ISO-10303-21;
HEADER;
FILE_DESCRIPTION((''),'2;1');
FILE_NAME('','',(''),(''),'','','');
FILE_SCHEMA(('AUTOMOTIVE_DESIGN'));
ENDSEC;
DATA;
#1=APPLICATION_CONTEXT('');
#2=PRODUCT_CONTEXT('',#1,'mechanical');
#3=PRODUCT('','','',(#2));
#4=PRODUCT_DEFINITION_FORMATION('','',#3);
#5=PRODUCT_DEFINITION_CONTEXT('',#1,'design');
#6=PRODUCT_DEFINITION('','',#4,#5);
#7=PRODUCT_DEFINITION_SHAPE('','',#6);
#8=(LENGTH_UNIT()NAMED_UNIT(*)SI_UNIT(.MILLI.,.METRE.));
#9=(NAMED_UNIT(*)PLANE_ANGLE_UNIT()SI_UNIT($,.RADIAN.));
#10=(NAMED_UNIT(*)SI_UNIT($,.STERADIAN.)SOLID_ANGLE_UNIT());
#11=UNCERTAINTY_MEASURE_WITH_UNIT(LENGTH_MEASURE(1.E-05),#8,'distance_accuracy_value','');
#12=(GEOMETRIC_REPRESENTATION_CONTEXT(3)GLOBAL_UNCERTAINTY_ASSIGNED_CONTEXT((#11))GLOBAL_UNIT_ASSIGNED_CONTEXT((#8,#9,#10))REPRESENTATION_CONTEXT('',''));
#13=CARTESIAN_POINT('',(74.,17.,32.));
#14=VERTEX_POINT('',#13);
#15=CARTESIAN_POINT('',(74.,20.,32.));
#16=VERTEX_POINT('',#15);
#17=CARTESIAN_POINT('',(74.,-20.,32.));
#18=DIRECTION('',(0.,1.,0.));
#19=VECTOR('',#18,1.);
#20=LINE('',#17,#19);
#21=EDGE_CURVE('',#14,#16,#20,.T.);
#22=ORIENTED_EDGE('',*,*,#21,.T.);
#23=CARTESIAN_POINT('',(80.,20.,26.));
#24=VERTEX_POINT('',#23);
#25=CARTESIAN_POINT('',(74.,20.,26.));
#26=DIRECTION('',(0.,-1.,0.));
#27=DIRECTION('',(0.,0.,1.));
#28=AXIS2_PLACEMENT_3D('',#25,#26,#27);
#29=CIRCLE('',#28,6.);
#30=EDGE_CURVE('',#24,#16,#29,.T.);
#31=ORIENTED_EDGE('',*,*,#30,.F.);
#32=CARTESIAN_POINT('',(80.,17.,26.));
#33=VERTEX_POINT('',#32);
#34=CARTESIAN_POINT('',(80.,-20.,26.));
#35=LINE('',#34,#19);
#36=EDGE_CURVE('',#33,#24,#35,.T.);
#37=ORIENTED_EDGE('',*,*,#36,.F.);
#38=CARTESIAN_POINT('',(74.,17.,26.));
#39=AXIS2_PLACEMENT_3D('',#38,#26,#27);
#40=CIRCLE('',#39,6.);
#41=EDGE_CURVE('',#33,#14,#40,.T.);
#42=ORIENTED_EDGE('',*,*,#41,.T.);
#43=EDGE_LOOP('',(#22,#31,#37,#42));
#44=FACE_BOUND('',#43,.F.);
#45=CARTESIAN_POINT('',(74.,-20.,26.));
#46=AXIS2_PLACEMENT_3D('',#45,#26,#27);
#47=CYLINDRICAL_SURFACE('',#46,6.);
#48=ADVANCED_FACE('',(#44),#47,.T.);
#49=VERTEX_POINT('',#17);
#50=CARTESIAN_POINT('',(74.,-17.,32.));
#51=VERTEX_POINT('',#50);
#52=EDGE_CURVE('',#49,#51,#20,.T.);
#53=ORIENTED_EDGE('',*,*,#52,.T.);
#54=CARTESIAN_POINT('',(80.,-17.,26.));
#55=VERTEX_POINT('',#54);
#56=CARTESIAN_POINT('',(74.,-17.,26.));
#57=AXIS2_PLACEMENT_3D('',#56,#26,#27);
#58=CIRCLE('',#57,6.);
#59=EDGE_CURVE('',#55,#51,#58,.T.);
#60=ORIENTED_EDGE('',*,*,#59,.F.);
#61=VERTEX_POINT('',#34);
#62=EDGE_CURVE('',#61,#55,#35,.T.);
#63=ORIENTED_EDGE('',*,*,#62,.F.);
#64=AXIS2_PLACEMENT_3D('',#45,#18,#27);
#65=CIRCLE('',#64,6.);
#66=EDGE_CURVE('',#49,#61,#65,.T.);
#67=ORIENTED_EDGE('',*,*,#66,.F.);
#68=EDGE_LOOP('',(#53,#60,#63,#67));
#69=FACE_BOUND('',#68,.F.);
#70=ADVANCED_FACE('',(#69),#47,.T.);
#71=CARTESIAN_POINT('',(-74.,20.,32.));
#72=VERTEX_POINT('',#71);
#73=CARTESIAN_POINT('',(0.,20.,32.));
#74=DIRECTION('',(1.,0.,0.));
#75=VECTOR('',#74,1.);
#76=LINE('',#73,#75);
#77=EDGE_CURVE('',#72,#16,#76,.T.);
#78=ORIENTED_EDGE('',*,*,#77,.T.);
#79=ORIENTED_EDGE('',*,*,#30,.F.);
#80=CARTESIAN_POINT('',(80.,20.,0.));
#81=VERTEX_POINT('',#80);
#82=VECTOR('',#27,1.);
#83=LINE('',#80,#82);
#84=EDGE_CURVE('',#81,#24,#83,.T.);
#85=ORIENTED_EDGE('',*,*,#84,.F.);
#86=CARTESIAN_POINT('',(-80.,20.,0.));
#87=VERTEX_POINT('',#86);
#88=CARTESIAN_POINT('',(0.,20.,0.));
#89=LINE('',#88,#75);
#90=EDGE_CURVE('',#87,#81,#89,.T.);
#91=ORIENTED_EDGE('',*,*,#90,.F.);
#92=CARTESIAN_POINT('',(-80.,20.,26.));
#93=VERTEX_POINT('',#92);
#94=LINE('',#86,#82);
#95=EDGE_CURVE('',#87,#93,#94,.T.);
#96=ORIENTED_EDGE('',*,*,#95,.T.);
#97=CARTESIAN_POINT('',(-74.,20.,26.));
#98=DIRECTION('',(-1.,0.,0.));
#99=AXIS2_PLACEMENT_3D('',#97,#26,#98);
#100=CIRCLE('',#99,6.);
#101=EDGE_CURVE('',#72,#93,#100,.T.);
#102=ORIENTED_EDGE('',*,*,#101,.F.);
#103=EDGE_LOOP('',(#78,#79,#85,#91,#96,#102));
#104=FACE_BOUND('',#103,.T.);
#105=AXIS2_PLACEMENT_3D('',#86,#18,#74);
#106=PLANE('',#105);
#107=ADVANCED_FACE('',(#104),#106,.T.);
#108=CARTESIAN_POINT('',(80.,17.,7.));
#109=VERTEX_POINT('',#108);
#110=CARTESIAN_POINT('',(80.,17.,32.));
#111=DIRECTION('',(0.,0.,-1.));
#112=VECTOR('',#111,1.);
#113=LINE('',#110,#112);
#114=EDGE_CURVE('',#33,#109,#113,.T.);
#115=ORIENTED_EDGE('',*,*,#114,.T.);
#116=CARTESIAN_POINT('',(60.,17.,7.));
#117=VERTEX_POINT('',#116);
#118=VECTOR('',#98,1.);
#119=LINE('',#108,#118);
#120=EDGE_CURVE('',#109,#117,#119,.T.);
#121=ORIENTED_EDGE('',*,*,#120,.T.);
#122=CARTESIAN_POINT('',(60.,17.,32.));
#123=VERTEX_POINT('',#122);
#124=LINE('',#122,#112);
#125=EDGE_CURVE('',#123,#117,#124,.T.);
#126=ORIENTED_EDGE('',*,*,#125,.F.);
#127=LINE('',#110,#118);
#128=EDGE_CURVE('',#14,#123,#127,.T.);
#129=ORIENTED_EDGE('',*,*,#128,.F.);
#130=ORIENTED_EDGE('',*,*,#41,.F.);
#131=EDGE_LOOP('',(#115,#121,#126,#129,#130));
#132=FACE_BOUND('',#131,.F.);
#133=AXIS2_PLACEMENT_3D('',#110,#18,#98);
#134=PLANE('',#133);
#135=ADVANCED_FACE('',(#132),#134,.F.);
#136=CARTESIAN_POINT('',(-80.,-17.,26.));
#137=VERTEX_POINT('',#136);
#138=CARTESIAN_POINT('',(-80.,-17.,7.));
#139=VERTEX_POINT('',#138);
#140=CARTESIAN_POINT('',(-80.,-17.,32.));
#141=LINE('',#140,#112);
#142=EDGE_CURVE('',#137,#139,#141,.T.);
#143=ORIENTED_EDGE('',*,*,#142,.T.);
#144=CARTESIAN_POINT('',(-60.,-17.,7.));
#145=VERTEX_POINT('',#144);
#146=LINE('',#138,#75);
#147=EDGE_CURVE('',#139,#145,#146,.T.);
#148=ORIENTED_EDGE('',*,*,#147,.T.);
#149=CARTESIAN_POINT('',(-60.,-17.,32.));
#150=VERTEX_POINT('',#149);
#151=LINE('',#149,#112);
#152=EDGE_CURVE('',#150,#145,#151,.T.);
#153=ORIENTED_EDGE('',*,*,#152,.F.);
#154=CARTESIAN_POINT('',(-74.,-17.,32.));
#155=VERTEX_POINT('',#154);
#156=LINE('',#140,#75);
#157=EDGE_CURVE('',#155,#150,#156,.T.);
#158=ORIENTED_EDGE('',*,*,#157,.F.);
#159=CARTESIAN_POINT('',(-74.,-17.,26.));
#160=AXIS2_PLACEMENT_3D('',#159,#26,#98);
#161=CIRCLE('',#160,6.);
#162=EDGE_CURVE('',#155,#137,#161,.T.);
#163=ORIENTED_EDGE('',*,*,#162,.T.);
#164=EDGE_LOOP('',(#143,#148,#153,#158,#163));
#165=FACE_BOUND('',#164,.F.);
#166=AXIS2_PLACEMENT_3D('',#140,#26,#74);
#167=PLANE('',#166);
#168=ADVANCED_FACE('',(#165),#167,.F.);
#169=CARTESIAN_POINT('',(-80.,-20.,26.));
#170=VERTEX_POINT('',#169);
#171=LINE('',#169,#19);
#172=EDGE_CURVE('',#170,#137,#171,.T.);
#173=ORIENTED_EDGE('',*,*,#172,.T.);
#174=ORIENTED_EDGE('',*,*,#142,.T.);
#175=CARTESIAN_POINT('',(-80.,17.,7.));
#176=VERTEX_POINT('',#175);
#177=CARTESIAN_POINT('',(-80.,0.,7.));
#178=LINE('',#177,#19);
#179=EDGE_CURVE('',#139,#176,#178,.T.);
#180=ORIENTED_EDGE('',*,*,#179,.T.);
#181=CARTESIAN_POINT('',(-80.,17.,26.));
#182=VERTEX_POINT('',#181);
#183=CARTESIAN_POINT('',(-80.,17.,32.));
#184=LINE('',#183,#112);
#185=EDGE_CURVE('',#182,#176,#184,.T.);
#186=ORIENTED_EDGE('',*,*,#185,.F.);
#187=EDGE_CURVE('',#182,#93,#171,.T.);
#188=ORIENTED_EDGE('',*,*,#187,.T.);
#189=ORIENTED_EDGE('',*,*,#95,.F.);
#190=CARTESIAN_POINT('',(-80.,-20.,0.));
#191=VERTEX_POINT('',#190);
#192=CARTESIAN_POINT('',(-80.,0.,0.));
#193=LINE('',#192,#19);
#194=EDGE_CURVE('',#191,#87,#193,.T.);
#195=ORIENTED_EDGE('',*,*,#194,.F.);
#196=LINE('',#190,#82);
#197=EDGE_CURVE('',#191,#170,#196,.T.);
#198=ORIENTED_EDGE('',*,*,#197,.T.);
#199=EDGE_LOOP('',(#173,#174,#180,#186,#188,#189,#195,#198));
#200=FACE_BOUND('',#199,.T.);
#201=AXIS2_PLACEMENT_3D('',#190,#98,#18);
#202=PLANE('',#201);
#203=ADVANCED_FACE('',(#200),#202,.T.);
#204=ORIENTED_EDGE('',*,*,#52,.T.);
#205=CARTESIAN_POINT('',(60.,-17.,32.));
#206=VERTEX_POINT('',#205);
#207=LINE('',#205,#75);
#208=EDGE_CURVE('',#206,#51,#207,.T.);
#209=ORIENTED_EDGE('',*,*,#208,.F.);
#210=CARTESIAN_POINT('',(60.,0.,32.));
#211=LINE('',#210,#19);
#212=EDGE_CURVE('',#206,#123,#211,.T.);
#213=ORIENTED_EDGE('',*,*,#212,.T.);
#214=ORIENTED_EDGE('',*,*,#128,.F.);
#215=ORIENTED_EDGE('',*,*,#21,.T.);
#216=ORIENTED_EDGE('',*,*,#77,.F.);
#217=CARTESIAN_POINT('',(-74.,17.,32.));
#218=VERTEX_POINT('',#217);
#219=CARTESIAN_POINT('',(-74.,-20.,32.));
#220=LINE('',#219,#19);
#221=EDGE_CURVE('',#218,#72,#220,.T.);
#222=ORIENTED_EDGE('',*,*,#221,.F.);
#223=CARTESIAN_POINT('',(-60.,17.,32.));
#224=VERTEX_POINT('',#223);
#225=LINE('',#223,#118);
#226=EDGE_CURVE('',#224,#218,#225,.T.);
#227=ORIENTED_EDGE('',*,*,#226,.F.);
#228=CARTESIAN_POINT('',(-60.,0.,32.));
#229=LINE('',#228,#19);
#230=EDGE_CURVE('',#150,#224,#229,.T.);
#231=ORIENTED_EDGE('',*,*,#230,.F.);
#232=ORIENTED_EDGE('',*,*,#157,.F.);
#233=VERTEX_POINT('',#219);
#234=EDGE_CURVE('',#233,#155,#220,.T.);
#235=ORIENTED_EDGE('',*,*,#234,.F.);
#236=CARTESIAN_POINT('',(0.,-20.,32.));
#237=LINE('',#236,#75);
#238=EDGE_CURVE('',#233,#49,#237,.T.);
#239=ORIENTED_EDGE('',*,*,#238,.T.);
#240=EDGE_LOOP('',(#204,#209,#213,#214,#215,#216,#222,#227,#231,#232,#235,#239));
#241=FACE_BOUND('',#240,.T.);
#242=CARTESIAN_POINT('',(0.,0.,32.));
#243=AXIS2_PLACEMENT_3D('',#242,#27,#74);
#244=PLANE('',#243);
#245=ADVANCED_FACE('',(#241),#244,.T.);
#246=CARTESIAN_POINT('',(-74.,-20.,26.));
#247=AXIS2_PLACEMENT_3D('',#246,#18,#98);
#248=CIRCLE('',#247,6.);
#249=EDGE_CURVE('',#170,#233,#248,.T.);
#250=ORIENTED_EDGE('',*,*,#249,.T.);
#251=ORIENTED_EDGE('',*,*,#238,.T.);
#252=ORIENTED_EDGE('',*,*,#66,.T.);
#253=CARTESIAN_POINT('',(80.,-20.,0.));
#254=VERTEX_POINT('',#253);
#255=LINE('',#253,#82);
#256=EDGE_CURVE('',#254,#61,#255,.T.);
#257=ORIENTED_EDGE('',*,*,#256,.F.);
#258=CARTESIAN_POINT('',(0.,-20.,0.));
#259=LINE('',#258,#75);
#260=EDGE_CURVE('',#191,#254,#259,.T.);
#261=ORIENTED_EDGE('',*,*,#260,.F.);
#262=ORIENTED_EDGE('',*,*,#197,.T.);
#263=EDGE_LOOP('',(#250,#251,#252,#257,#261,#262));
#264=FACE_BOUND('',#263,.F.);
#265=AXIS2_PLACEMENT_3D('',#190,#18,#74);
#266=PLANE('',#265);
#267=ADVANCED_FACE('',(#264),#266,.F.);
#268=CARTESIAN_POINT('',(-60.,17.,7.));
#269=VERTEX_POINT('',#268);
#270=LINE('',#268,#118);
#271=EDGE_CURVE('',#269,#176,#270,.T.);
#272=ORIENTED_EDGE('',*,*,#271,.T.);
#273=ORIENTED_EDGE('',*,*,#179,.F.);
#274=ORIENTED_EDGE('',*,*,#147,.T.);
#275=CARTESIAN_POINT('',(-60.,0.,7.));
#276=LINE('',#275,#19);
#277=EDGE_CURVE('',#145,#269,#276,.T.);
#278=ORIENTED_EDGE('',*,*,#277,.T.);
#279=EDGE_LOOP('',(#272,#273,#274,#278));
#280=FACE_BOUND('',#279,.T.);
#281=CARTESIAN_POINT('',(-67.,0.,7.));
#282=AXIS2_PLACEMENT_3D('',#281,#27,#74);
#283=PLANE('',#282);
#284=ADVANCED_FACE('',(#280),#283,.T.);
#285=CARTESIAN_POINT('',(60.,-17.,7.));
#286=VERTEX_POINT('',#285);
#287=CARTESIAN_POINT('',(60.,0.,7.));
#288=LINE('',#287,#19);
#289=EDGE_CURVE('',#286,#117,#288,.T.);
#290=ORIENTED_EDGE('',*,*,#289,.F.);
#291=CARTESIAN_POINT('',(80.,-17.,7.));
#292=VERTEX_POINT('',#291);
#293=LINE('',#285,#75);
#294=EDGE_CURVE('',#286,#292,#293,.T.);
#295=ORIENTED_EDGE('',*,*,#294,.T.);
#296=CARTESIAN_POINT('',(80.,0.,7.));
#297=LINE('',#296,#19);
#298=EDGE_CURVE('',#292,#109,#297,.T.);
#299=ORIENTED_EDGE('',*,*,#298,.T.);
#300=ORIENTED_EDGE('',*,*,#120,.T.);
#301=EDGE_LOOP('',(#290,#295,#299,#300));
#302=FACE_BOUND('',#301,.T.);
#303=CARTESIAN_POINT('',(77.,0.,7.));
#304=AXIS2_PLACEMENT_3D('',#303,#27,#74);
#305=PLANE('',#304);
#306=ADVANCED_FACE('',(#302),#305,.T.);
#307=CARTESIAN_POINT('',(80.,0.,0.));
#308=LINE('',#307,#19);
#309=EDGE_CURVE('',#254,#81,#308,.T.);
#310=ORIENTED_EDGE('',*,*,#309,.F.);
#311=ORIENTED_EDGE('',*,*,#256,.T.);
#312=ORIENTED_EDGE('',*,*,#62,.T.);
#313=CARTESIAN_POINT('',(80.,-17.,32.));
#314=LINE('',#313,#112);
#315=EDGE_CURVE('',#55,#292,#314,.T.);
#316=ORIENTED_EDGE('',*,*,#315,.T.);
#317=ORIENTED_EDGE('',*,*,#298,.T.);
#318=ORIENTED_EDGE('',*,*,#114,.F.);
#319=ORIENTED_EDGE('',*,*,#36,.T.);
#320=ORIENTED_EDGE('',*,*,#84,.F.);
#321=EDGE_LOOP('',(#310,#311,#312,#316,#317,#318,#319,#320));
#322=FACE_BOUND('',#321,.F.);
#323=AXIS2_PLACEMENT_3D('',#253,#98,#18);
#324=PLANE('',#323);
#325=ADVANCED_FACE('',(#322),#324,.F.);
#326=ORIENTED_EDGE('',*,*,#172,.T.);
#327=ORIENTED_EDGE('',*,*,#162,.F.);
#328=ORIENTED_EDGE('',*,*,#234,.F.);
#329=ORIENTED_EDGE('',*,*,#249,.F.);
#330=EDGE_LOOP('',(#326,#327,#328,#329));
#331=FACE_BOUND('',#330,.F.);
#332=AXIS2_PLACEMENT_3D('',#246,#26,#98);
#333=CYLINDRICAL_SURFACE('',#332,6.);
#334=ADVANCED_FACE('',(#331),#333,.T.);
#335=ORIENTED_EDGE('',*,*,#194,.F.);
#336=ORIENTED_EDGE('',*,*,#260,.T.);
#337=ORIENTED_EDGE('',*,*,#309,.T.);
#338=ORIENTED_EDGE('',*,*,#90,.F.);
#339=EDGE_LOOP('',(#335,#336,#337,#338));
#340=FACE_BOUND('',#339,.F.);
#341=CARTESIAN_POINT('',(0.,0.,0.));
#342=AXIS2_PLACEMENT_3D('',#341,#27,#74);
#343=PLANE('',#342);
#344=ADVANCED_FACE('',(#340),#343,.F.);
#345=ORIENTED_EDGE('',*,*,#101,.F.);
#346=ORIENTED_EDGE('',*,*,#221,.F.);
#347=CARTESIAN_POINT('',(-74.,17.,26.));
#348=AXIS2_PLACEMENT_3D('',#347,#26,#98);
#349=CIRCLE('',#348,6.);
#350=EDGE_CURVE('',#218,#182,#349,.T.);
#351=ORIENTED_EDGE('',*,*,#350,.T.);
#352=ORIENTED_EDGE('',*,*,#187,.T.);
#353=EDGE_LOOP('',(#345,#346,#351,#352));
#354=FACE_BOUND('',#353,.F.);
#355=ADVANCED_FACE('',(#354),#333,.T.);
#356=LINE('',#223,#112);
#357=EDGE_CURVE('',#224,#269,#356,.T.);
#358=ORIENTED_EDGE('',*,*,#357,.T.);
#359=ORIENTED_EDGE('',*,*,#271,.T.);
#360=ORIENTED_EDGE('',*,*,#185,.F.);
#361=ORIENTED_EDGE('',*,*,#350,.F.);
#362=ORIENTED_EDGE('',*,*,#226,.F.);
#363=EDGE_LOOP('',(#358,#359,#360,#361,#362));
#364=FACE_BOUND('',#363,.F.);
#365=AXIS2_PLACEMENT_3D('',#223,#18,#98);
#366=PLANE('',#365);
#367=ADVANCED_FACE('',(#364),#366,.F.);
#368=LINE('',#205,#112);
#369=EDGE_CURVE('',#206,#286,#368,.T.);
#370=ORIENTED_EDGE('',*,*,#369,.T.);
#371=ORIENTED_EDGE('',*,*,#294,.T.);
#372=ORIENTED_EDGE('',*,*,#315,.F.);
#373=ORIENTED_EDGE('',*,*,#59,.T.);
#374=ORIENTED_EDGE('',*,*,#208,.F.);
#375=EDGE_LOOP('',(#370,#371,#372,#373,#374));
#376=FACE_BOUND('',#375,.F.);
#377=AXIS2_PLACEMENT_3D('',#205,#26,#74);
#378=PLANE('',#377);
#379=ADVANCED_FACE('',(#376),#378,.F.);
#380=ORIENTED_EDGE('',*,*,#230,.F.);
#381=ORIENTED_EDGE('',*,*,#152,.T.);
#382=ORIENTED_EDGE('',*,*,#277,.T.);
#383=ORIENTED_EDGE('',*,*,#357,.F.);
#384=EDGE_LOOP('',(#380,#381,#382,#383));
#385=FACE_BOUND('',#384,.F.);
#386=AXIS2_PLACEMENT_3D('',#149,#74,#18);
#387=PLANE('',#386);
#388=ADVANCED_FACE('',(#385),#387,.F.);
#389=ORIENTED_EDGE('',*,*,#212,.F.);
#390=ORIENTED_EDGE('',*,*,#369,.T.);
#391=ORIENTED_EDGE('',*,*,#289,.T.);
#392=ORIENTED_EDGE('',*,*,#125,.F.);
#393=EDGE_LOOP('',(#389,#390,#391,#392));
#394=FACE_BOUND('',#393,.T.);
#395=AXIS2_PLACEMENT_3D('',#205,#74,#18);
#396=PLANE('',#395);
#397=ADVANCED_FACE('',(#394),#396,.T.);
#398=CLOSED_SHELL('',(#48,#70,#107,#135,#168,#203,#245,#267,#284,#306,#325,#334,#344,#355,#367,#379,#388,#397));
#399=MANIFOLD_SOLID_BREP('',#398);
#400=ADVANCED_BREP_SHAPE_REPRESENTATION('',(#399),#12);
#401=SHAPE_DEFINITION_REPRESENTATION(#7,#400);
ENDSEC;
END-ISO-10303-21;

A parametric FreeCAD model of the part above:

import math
import FreeCAD as App
import Part
import Sketcher
Q = App.Units.Quantity


def add_polygon(sketch, points):
    """Adds a closed chain of lines whose ends are joined by coincident constraints."""
    first, n = sketch.GeometryCount, len(points)
    for a, b in zip(points, points[1:] + points[:1]):
        sketch.addGeometry(Part.LineSegment(App.Vector(*a, 0), App.Vector(*b, 0)), False)
    for i in range(n):
        sketch.addConstraint(Sketcher.Constraint("Coincident", first + i, 2, first + (i + 1) % n, 1))

doc = App.newDocument("Part")
body = doc.addObject("PartDesign::Body", "Body")

sketch1 = body.newObject("Sketcher::SketchObject", "Sketch")
sketch1.AttachmentSupport = (doc.getObject("XY_Plane"), [""])
sketch1.MapMode = "FlatFace"
add_polygon(sketch1, [(-80, 20), (-80, -20), (80, -20), (80, 20)])
sketch1.addConstraint([
    Sketcher.Constraint("Vertical", 0),
    Sketcher.Constraint("Horizontal", 1),
    Sketcher.Constraint("Vertical", 2),
    Sketcher.Constraint("Horizontal", 3),
    Sketcher.Constraint("Symmetric", 0, 2, 2, 2, -1, 1),
    Sketcher.Constraint("DistanceX", 1, 1, 1, 2, Q("160 mm")),
    Sketcher.Constraint("DistanceY", 0, 2, 0, 1, Q("40 mm")),
])
pad1 = body.newObject("PartDesign::Pad", "Pad")
pad1.Profile = sketch1
pad1.Length = 32

sketch2 = body.newObject("Sketcher::SketchObject", "Sketch001")
sketch2.AttachmentSupport = (doc.getObject("XZ_Plane"), [""])
sketch2.MapMode = "FlatFace"
sketch2.AttachmentOffset = App.Placement(App.Vector(0, 0, 20), App.Rotation())
sketch2.addGeometry([
    Part.ArcOfCircle(Part.Circle(App.Vector(-74, 26, 0), App.Vector(0, 0, 1), 6), math.radians(90), math.radians(180)),
    Part.LineSegment(App.Vector(-74, 32, 0), App.Vector(-80, 32, 0)),
    Part.LineSegment(App.Vector(-80, 32, 0), App.Vector(-80, 26, 0)),
    Part.LineSegment(App.Vector(80, 32, 0), App.Vector(74, 32, 0)),
    Part.ArcOfCircle(Part.Circle(App.Vector(74, 26, 0), App.Vector(0, 0, 1), 6), math.radians(0), math.radians(90)),
    Part.LineSegment(App.Vector(80, 26, 0), App.Vector(80, 32, 0)),
], False)
sketch2.addConstraint([
    Sketcher.Constraint("Tangent", 0, 1, 1, 1),
    Sketcher.Constraint("Coincident", 1, 2, 2, 1),
    Sketcher.Constraint("Tangent", 2, 2, 0, 2),
    Sketcher.Constraint("Tangent", 3, 2, 4, 2),
    Sketcher.Constraint("Tangent", 4, 1, 5, 1),
    Sketcher.Constraint("Coincident", 5, 2, 3, 1),
    Sketcher.Constraint("Horizontal", 1),
    Sketcher.Constraint("Vertical", 2),
    Sketcher.Constraint("Horizontal", 3),
    Sketcher.Constraint("Vertical", 5),
    Sketcher.Constraint("Equal", 0, 4),
    Sketcher.Constraint("Symmetric", 0, 3, 4, 3, -2),
    Sketcher.Constraint("Radius", 0, Q("6 mm")),
    Sketcher.Constraint("DistanceX", 0, 3, -1, 1, Q("74 mm")),
    Sketcher.Constraint("DistanceY", -1, 1, 0, 3, Q("26 mm")),
])
pocket1 = body.newObject("PartDesign::Pocket", "Pocket")
pocket1.Profile = sketch2
pocket1.Type = "ThroughAll"

sketch3 = body.newObject("Sketcher::SketchObject", "Sketch002")
sketch3.AttachmentSupport = (doc.getObject("XY_Plane"), [""])
sketch3.MapMode = "FlatFace"
sketch3.AttachmentOffset = App.Placement(App.Vector(0, 0, 32), App.Rotation())
add_polygon(sketch3, [(80, -17), (80, 17), (60, 17), (60, -17)])
add_polygon(sketch3, [(-60, -17), (-60, 17), (-80, 17), (-80, -17)])
sketch3.addConstraint([
    Sketcher.Constraint("Vertical", 0),
    Sketcher.Constraint("Horizontal", 1),
    Sketcher.Constraint("Vertical", 2),
    Sketcher.Constraint("Horizontal", 3),
    Sketcher.Constraint("Vertical", 4),
    Sketcher.Constraint("Horizontal", 5),
    Sketcher.Constraint("Vertical", 6),
    Sketcher.Constraint("Horizontal", 7),
    Sketcher.Constraint("Symmetric", 2, 2, 4, 2, -1, 1),
    Sketcher.Constraint("Symmetric", 0, 2, 6, 2, -1, 1),
    Sketcher.Constraint("Horizontal", 1, 2, 4, 2),
    Sketcher.Constraint("DistanceX", 1, 2, 1, 1, Q("20 mm")),
    Sketcher.Constraint("DistanceY", 0, 1, 0, 2, Q("34 mm")),
    Sketcher.Constraint("DistanceX", -1, 1, 0, 2, Q("80 mm")),
])
pocket2 = body.newObject("PartDesign::Pocket", "Pocket001")
pocket2.Profile = sketch3
pocket2.Length = 25

doc.recompute()
